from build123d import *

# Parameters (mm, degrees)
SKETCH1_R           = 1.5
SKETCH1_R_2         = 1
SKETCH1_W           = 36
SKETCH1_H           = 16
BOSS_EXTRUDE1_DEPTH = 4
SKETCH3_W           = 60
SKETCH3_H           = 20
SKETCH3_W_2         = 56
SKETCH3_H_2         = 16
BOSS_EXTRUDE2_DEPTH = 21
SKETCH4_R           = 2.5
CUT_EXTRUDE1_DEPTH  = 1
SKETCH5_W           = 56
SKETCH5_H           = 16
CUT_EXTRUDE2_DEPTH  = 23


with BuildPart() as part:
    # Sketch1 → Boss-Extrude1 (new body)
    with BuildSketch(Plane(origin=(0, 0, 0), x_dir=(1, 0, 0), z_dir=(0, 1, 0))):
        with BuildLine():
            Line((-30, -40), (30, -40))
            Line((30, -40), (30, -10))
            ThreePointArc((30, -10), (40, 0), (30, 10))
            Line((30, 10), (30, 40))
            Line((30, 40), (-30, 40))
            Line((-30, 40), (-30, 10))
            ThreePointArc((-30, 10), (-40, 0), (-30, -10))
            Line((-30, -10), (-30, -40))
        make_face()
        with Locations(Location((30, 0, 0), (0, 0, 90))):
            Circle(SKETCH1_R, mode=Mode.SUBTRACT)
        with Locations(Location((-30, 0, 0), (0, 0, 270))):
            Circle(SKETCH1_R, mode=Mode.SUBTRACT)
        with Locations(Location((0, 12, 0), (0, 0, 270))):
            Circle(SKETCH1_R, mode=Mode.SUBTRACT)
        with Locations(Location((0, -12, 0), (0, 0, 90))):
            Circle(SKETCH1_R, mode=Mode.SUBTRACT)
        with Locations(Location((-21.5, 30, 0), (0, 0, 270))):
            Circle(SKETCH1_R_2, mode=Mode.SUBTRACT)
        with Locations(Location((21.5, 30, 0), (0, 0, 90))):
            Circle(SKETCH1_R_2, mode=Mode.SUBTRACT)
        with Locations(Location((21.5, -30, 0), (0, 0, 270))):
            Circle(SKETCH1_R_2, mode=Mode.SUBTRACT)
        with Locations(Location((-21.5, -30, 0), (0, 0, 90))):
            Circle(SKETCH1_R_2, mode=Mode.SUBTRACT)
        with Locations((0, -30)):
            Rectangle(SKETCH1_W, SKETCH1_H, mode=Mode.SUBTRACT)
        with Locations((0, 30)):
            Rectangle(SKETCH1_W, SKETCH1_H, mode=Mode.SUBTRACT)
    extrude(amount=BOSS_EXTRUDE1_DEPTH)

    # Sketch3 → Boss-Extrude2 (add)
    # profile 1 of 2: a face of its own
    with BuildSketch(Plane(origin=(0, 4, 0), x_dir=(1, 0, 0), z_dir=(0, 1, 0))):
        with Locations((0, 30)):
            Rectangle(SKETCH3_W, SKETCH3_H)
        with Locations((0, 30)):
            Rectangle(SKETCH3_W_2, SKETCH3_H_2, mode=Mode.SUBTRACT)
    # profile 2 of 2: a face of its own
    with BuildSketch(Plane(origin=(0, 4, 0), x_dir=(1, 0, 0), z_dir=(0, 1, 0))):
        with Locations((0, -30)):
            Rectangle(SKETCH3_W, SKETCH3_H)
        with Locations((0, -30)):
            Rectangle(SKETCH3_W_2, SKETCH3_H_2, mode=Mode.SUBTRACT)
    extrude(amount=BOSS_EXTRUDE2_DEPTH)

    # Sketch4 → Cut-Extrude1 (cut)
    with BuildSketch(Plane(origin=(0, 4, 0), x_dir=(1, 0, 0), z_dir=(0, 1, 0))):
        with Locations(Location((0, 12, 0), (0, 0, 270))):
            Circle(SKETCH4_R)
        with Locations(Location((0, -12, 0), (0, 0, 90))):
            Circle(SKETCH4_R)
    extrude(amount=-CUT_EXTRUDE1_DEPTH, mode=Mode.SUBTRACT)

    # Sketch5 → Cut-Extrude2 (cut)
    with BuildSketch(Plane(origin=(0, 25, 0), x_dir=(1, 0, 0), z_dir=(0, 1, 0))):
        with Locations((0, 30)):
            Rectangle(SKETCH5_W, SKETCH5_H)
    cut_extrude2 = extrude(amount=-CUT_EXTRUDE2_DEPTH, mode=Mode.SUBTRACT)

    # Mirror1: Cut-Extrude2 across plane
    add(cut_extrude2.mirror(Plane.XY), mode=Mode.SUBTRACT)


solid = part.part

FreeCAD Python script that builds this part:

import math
import FreeCAD as App
import Part
import Sketcher
from FreeCAD import Vector
Q = App.Units.Quantity

doc = App.newDocument("Part")
params = doc.addObject("Spreadsheet::Sheet", "Params")
for row, (alias, value) in enumerate([
    ("sketch1_diameter", "2 mm"),
    ("sketch1_diameter2", "3 mm"),
    ("sketch1_radius", "10 mm"),
    ("sketch1_width", "60 mm"),
    ("sketch1_width2", "36 mm"),
    ("pad1_length", "4 mm"),
    ("sketch2_width", "60 mm"),
    ("sketch2_width2", "56 mm"),
    ("sketch2_height", "20 mm"),
    ("sketch2_height2", "16 mm"),
    ("pad2_length", "21 mm"),
    ("sketch3_diameter", "5 mm"),
    ("pocket1_length", "1 mm"),
    ("sketch4_width", "56 mm"),
    ("sketch4_height", "16 mm"),
    ("pocket2_length", "23 mm"),
], start=1):
    params.set(f"A{row}", alias)
    params.set(f"B{row}", "=" + value)
    params.setAlias(f"B{row}", alias)

body = doc.addObject("PartDesign::Body", "Body")

sketch1 = body.newObject("Sketcher::SketchObject", "Sketch")
sketch1.AttachmentSupport = (doc.getObject("XZ_Plane"), [""])
sketch1.MapMode = "FlatFace"
sketch1.addGeometry([
    Part.LineSegment(Vector(-30, 40, 0), Vector(30, 40, 0)),
    Part.LineSegment(Vector(30, 40, 0), Vector(30, 10, 0)),
    Part.ArcOfCircle(Part.Circle(Vector(30, 0, 0), Vector(0, 0, 1), 10), math.radians(-90), math.radians(90)),
    Part.LineSegment(Vector(30, -10, 0), Vector(30, -40, 0)),
    Part.LineSegment(Vector(30, -40, 0), Vector(-30, -40, 0)),
    Part.LineSegment(Vector(-30, -40, 0), Vector(-30, -10, 0)),
    Part.ArcOfCircle(Part.Circle(Vector(-30, 0, 0), Vector(0, 0, 1), 10), math.radians(90), math.radians(270)),
    Part.LineSegment(Vector(-30, 10, 0), Vector(-30, 40, 0)),
    Part.Circle(Vector(-21.5, 30, 0), Vector(0, 0, 1), 1),
    Part.LineSegment(Vector(18, 38, 0), Vector(-18, 38, 0)),
    Part.LineSegment(Vector(-18, 38, 0), Vector(-18, 22, 0)),
    Part.LineSegment(Vector(-18, 22, 0), Vector(18, 22, 0)),
    Part.LineSegment(Vector(18, 22, 0), Vector(18, 38, 0)),
    Part.Circle(Vector(21.5, 30, 0), Vector(0, 0, 1), 1),
    Part.Circle(Vector(0, 12, 0), Vector(0, 0, 1), 1.5),
    Part.Circle(Vector(-30, 0, 0), Vector(0, 0, 1), 1.5),
    Part.Circle(Vector(-21.5, -30, 0), Vector(0, 0, 1), 1),
    Part.Circle(Vector(0, -12, 0), Vector(0, 0, 1), 1.5),
    Part.Circle(Vector(30, 0, 0), Vector(0, 0, 1), 1.5),
    Part.LineSegment(Vector(18, -22, 0), Vector(-18, -22, 0)),
    Part.LineSegment(Vector(-18, -22, 0), Vector(-18, -38, 0)),
    Part.LineSegment(Vector(-18, -38, 0), Vector(18, -38, 0)),
    Part.LineSegment(Vector(18, -38, 0), Vector(18, -22, 0)),
    Part.Circle(Vector(21.5, -30, 0), Vector(0, 0, 1), 1),
], False)
sketch1.addConstraint([
    Sketcher.Constraint("Coincident", 0, 2, 1, 1),
    Sketcher.Constraint("Coincident", 1, 2, 2, 2),
    Sketcher.Constraint("Coincident", 2, 1, 3, 1),
    Sketcher.Constraint("Coincident", 3, 2, 4, 1),
    Sketcher.Constraint("Coincident", 4, 2, 5, 1),
    Sketcher.Constraint("Coincident", 5, 2, 6, 2),
    Sketcher.Constraint("Coincident", 6, 1, 7, 1),
    Sketcher.Constraint("Coincident", 7, 2, 0, 1),
    Sketcher.Constraint("Coincident", 9, 2, 10, 1),
    Sketcher.Constraint("Coincident", 10, 2, 11, 1),
    Sketcher.Constraint("Coincident", 11, 2, 12, 1),
    Sketcher.Constraint("Coincident", 12, 2, 9, 1),
    Sketcher.Constraint("Coincident", 19, 2, 20, 1),
    Sketcher.Constraint("Coincident", 20, 2, 21, 1),
    Sketcher.Constraint("Coincident", 21, 2, 22, 1),
    Sketcher.Constraint("Coincident", 22, 2, 19, 1),
    Sketcher.Constraint("Horizontal", 0),
    Sketcher.Constraint("Vertical", 1),
    Sketcher.Constraint("Vertical", 3),
    Sketcher.Constraint("Horizontal", 4),
    Sketcher.Constraint("Vertical", 5),
    Sketcher.Constraint("Vertical", 7),
    Sketcher.Constraint("Horizontal", 9),
    Sketcher.Constraint("Vertical", 10),
    Sketcher.Constraint("Horizontal", 11),
    Sketcher.Constraint("Vertical", 12),
    Sketcher.Constraint("Horizontal", 19),
    Sketcher.Constraint("Vertical", 20),
    Sketcher.Constraint("Horizontal", 21),
    Sketcher.Constraint("Vertical", 22),
    Sketcher.Constraint("Coincident", 15, 3, 6, 3),
    Sketcher.Constraint("Coincident", 18, 3, 2, 3),
    Sketcher.Constraint("Equal", 2, 6),
    Sketcher.Constraint("Equal", 8, 13),
    Sketcher.Constraint("Equal", 14, 15),
    Sketcher.Constraint("Equal", 13, 16),
    Sketcher.Constraint("Equal", 15, 17),
    Sketcher.Constraint("Equal", 17, 18),
    Sketcher.Constraint("Equal", 16, 23),
    Sketcher.Constraint("Symmetric", 2, 3, 6, 3, -1, 1),
    Sketcher.Constraint("Symmetric", 13, 3, 16, 3, -1, 1),
    Sketcher.Constraint("Symmetric", 14, 3, 17, 3, -1, 1),
    Sketcher.Constraint("Symmetric", 8, 3, 23, 3, -1, 1),
    Sketcher.Constraint("Symmetric", 0, 2, 4, 2, -1, 1),
    Sketcher.Constraint("Symmetric", 11, 2, 19, 2, -1, 1),
    Sketcher.Constraint("Symmetric", 9, 2, 21, 2, -1, 1),
    Sketcher.Constraint("Symmetric", 8, 3, 13, 3, -2),
    Sketcher.Constraint("Symmetric", 2, 1, 5, 2, -2),
    Sketcher.Constraint("PointOnObject", 14, 3, -2),
    Sketcher.Constraint("Vertical", 18, 3, 0, 2),
    Sketcher.Constraint("Vertical", 5, 2, 6, 1),
    Sketcher.Constraint("Vertical", 10, 2, 19, 2),
    Sketcher.Constraint("Diameter", 8, Q("2 mm")),
    Sketcher.Constraint("Diameter", 14, Q("3 mm")),
    Sketcher.Constraint("Radius", 2, Q("10 mm")),
    Sketcher.Constraint("DistanceX", 0, 1, 0, 2, Q("60 mm")),
    Sketcher.Constraint("DistanceX", 9, 2, 9, 1, Q("36 mm")),
    Sketcher.Constraint("DistanceY", 1, 2, 1, 1, Q("30 mm")),
    Sketcher.Constraint("DistanceY", 10, 2, 10, 1, Q("16 mm")),
    Sketcher.Constraint("DistanceY", -1, 1, 8, 3, Q("30 mm")),
    Sketcher.Constraint("DistanceY", -1, 1, 14, 3, Q("12 mm")),
    Sketcher.Constraint("DistanceY", -1, 1, 9, 2, Q("38 mm")),
    Sketcher.Constraint("DistanceX", 8, 3, 13, 3, Q("43 mm")),
])
sketch1.setExpression("Constraints[52]", "Params.sketch1_diameter")
sketch1.setExpression("Constraints[53]", "Params.sketch1_diameter2")
sketch1.setExpression("Constraints[54]", "Params.sketch1_radius")
sketch1.setExpression("Constraints[55]", "Params.sketch1_width")
sketch1.setExpression("Constraints[56]", "Params.sketch1_width2")
pad1 = body.newObject("PartDesign::Pad", "Pad")
pad1.Profile = sketch1
pad1.setExpression("Length", "Params.pad1_length")
pad1.Reversed = True

sketch2 = body.newObject("Sketcher::SketchObject", "Sketch001")
sketch2.AttachmentSupport = (doc.getObject("XZ_Plane"), [""])
sketch2.MapMode = "FlatFace"
sketch2.AttachmentOffset = App.Placement(Vector(0, 0, -4), App.Rotation())
sketch2.addGeometry([
    Part.LineSegment(Vector(-30, -40, 0), Vector(-30, -20, 0)),
    Part.LineSegment(Vector(-30, -20, 0), Vector(30, -20, 0)),
    Part.LineSegment(Vector(30, -20, 0), Vector(30, -40, 0)),
    Part.LineSegment(Vector(30, -40, 0), Vector(-30, -40, 0)),
    Part.LineSegment(Vector(28, -22, 0), Vector(-28, -22, 0)),
    Part.LineSegment(Vector(-28, -22, 0), Vector(-28, -38, 0)),
    Part.LineSegment(Vector(-28, -38, 0), Vector(28, -38, 0)),
    Part.LineSegment(Vector(28, -38, 0), Vector(28, -22, 0)),
    Part.LineSegment(Vector(-30, 20, 0), Vector(-30, 40, 0)),
    Part.LineSegment(Vector(-30, 40, 0), Vector(30, 40, 0)),
    Part.LineSegment(Vector(30, 40, 0), Vector(30, 20, 0)),
    Part.LineSegment(Vector(30, 20, 0), Vector(-30, 20, 0)),
    Part.LineSegment(Vector(28, 38, 0), Vector(-28, 38, 0)),
    Part.LineSegment(Vector(-28, 38, 0), Vector(-28, 22, 0)),
    Part.LineSegment(Vector(-28, 22, 0), Vector(28, 22, 0)),
    Part.LineSegment(Vector(28, 22, 0), Vector(28, 38, 0)),
], False)
sketch2.addConstraint([
    Sketcher.Constraint("Coincident", 0, 2, 1, 1),
    Sketcher.Constraint("Coincident", 1, 2, 2, 1),
    Sketcher.Constraint("Coincident", 2, 2, 3, 1),
    Sketcher.Constraint("Coincident", 3, 2, 0, 1),
    Sketcher.Constraint("Coincident", 4, 2, 5, 1),
    Sketcher.Constraint("Coincident", 5, 2, 6, 1),
    Sketcher.Constraint("Coincident", 6, 2, 7, 1),
    Sketcher.Constraint("Coincident", 7, 2, 4, 1),
    Sketcher.Constraint("Coincident", 8, 2, 9, 1),
    Sketcher.Constraint("Coincident", 9, 2, 10, 1),
    Sketcher.Constraint("Coincident", 10, 2, 11, 1),
    Sketcher.Constraint("Coincident", 11, 2, 8, 1),
    Sketcher.Constraint("Coincident", 12, 2, 13, 1),
    Sketcher.Constraint("Coincident", 13, 2, 14, 1),
    Sketcher.Constraint("Coincident", 14, 2, 15, 1),
    Sketcher.Constraint("Coincident", 15, 2, 12, 1),
    Sketcher.Constraint("Vertical", 0),
    Sketcher.Constraint("Horizontal", 1),
    Sketcher.Constraint("Vertical", 2),
    Sketcher.Constraint("Horizontal", 3),
    Sketcher.Constraint("Horizontal", 4),
    Sketcher.Constraint("Vertical", 5),
    Sketcher.Constraint("Horizontal", 6),
    Sketcher.Constraint("Vertical", 7),
    Sketcher.Constraint("Vertical", 8),
    Sketcher.Constraint("Horizontal", 9),
    Sketcher.Constraint("Vertical", 10),
    Sketcher.Constraint("Horizontal", 11),
    Sketcher.Constraint("Horizontal", 12),
    Sketcher.Constraint("Vertical", 13),
    Sketcher.Constraint("Horizontal", 14),
    Sketcher.Constraint("Vertical", 15),
    Sketcher.Constraint("Symmetric", 2, 2, 8, 2, -1, 1),
    Sketcher.Constraint("Symmetric", 0, 2, 10, 2, -1, 1),
    Sketcher.Constraint("Symmetric", 6, 2, 12, 2, -1, 1),
    Sketcher.Constraint("Symmetric", 4, 2, 14, 2, -1, 1),
    Sketcher.Constraint("Vertical", 3, 2, 8, 2),
    Sketcher.Constraint("Vertical", 5, 2, 12, 2),
    Sketcher.Constraint("DistanceX", 1, 1, 1, 2, Q("60 mm")),
    Sketcher.Constraint("DistanceX", 4, 2, 4, 1, Q("56 mm")),
    Sketcher.Constraint("DistanceY", 0, 1, 0, 2, Q("20 mm")),
    Sketcher.Constraint("DistanceY", 5, 2, 5, 1, Q("16 mm")),
    Sketcher.Constraint("DistanceY", 0, 2, -1, 1, Q("20 mm")),
    Sketcher.Constraint("DistanceY", 4, 2, -1, 1, Q("22 mm")),
])
sketch2.setExpression("Constraints[38]", "Params.sketch2_width")
sketch2.setExpression("Constraints[39]", "Params.sketch2_width2")
sketch2.setExpression("Constraints[40]", "Params.sketch2_height")
sketch2.setExpression("Constraints[41]", "Params.sketch2_height2")
pad2 = body.newObject("PartDesign::Pad", "Pad001")
pad2.Profile = sketch2
pad2.setExpression("Length", "Params.pad2_length")
pad2.Reversed = True

sketch3 = body.newObject("Sketcher::SketchObject", "Sketch002")
sketch3.AttachmentSupport = (doc.getObject("XZ_Plane"), [""])
sketch3.MapMode = "FlatFace"
sketch3.AttachmentOffset = App.Placement(Vector(0, 0, -4), App.Rotation())
sketch3.addGeometry([
    Part.Circle(Vector(0, -12, 0), Vector(0, 0, 1), 2.5),
    Part.Circle(Vector(0, 12, 0), Vector(0, 0, 1), 2.5),
], False)
sketch3.addConstraint([
    Sketcher.Constraint("Equal", 0, 1),
    Sketcher.Constraint("Symmetric", 0, 3, 1, 3, -1, 1),
    Sketcher.Constraint("PointOnObject", 0, 3, -2),
    Sketcher.Constraint("Diameter", 0, Q("5 mm")),
    Sketcher.Constraint("DistanceY", 0, 3, -1, 1, Q("12 mm")),
])
sketch3.setExpression("Constraints[3]", "Params.sketch3_diameter")
pocket1 = body.newObject("PartDesign::Pocket", "Pocket")
pocket1.Profile = sketch3
pocket1.setExpression("Length", "Params.pocket1_length")
pocket1.Reversed = True

sketch4 = body.newObject("Sketcher::SketchObject", "Sketch003")
sketch4.AttachmentSupport = (doc.getObject("XZ_Plane"), [""])
sketch4.MapMode = "FlatFace"
sketch4.AttachmentOffset = App.Placement(Vector(0, 0, -25), App.Rotation())
sketch4.addGeometry([
    Part.LineSegment(Vector(-28, -38, 0), Vector(-28, -22, 0)),
    Part.LineSegment(Vector(-28, -22, 0), Vector(28, -22, 0)),
    Part.LineSegment(Vector(28, -22, 0), Vector(28, -38, 0)),
    Part.LineSegment(Vector(28, -38, 0), Vector(-28, -38, 0)),
], False)
sketch4.addConstraint([
    Sketcher.Constraint("Coincident", 0, 2, 1, 1),
    Sketcher.Constraint("Coincident", 1, 2, 2, 1),
    Sketcher.Constraint("Coincident", 2, 2, 3, 1),
    Sketcher.Constraint("Coincident", 3, 2, 0, 1),
    Sketcher.Constraint("Vertical", 0),
    Sketcher.Constraint("Horizontal", 1),
    Sketcher.Constraint("Vertical", 2),
    Sketcher.Constraint("Horizontal", 3),
    Sketcher.Constraint("DistanceX", 1, 1, 1, 2, Q("56 mm")),
    Sketcher.Constraint("DistanceY", 0, 1, 0, 2, Q("16 mm")),
    Sketcher.Constraint("DistanceX", 0, 2, -1, 1, Q("28 mm")),
    Sketcher.Constraint("DistanceY", 0, 2, -1, 1, Q("22 mm")),
])
sketch4.setExpression("Constraints[8]", "Params.sketch4_width")
sketch4.setExpression("Constraints[9]", "Params.sketch4_height")
pocket2 = body.newObject("PartDesign::Pocket", "Pocket001")
pocket2.Profile = sketch4
pocket2.setExpression("Length", "Params.pocket2_length")
pocket2.Reversed = True
doc.recompute()

mirrored = body.newObject("PartDesign::Mirrored", "Mirrored")
mirrored.Originals = [pocket2]
mirrored.MirrorPlane = (doc.getObject("XY_Plane"), [""])
body.Tip = mirrored

doc.recompute()
